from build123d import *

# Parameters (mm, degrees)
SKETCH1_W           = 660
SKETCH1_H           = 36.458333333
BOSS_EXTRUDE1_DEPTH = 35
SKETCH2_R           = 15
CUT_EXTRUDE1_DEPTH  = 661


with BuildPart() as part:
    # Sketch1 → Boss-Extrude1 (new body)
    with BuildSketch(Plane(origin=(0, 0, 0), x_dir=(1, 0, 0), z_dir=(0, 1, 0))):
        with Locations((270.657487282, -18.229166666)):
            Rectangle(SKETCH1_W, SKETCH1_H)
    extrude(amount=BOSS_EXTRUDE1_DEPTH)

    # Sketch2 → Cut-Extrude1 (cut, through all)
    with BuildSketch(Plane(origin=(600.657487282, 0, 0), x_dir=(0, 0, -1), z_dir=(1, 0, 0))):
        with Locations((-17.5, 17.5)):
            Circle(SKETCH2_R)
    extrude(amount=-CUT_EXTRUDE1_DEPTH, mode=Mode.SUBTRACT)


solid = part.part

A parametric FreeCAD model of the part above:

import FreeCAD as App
import Part
import Sketcher

V = App.Vector


def add_polygon(sketch, points):
    """Adds a closed chain of lines whose ends are joined by coincident constraints."""
    first, n = sketch.GeometryCount, len(points)
    for a, b in zip(points, points[1:] + points[:1]):
        sketch.addGeometry(Part.LineSegment(App.Vector(*a, 0), App.Vector(*b, 0)), False)
    for i in range(n):
        sketch.addConstraint(Sketcher.Constraint("Coincident", first + i, 2, first + (i + 1) % n, 1))

doc = App.newDocument("Part")
body = doc.addObject("PartDesign::Body", "Body")

# Sketch on XZ plane
sketch1 = body.newObject("Sketcher::SketchObject", "Sketch")
sketch1.AttachmentSupport = (doc.getObject("XZ_Plane"), [""])
sketch1.MapMode = "FlatFace"
add_polygon(sketch1, [(-59, 0), (-59, 36), (601, 36), (601, 0)])  # lines 0-3
sketch1.addConstraint(Sketcher.Constraint("Vertical", 0))
sketch1.addConstraint(Sketcher.Constraint("Horizontal", 1))
sketch1.addConstraint(Sketcher.Constraint("Vertical", 2))
sketch1.addConstraint(Sketcher.Constraint("Horizontal", 3))
sketch1.addConstraint(Sketcher.Constraint("PointOnObject", 2, 2, -1))
sketch1.addConstraint(Sketcher.Constraint("DistanceX", 1, 1, 1, 2, 660.0))
sketch1.addConstraint(Sketcher.Constraint("DistanceY", 0, 1, 0, 2, 36.458333))
sketch1.addConstraint(Sketcher.Constraint("DistanceX", 0, 2, -1, 1, 59.342513))
pad1 = body.newObject("PartDesign::Pad", "Pad")
pad1.Profile = sketch1
pad1.Length = 35
pad1.Reversed = True

# Sketch on YZ plane
sketch2 = body.newObject("Sketcher::SketchObject", "Sketch001")
sketch2.AttachmentSupport = (doc.getObject("YZ_Plane"), [""])
sketch2.MapMode = "FlatFace"
sketch2.AttachmentOffset = App.Placement(V(0, 0, 600.657487), App.Rotation())
sketch2.addGeometry(Part.Circle(V(18, 18, 0), V(0, 0, 1), 15), False)
sketch2.addConstraint(Sketcher.Constraint("Diameter", 0, 30.0))
sketch2.addConstraint(Sketcher.Constraint("DistanceX", -1, 1, 0, 3, 17.5))
sketch2.addConstraint(Sketcher.Constraint("DistanceY", -1, 1, 0, 3, 17.5))
pocket1 = body.newObject("PartDesign::Pocket", "Pocket")
pocket1.Profile = sketch2
pocket1.Type = "ThroughAll"

doc.recompute()
